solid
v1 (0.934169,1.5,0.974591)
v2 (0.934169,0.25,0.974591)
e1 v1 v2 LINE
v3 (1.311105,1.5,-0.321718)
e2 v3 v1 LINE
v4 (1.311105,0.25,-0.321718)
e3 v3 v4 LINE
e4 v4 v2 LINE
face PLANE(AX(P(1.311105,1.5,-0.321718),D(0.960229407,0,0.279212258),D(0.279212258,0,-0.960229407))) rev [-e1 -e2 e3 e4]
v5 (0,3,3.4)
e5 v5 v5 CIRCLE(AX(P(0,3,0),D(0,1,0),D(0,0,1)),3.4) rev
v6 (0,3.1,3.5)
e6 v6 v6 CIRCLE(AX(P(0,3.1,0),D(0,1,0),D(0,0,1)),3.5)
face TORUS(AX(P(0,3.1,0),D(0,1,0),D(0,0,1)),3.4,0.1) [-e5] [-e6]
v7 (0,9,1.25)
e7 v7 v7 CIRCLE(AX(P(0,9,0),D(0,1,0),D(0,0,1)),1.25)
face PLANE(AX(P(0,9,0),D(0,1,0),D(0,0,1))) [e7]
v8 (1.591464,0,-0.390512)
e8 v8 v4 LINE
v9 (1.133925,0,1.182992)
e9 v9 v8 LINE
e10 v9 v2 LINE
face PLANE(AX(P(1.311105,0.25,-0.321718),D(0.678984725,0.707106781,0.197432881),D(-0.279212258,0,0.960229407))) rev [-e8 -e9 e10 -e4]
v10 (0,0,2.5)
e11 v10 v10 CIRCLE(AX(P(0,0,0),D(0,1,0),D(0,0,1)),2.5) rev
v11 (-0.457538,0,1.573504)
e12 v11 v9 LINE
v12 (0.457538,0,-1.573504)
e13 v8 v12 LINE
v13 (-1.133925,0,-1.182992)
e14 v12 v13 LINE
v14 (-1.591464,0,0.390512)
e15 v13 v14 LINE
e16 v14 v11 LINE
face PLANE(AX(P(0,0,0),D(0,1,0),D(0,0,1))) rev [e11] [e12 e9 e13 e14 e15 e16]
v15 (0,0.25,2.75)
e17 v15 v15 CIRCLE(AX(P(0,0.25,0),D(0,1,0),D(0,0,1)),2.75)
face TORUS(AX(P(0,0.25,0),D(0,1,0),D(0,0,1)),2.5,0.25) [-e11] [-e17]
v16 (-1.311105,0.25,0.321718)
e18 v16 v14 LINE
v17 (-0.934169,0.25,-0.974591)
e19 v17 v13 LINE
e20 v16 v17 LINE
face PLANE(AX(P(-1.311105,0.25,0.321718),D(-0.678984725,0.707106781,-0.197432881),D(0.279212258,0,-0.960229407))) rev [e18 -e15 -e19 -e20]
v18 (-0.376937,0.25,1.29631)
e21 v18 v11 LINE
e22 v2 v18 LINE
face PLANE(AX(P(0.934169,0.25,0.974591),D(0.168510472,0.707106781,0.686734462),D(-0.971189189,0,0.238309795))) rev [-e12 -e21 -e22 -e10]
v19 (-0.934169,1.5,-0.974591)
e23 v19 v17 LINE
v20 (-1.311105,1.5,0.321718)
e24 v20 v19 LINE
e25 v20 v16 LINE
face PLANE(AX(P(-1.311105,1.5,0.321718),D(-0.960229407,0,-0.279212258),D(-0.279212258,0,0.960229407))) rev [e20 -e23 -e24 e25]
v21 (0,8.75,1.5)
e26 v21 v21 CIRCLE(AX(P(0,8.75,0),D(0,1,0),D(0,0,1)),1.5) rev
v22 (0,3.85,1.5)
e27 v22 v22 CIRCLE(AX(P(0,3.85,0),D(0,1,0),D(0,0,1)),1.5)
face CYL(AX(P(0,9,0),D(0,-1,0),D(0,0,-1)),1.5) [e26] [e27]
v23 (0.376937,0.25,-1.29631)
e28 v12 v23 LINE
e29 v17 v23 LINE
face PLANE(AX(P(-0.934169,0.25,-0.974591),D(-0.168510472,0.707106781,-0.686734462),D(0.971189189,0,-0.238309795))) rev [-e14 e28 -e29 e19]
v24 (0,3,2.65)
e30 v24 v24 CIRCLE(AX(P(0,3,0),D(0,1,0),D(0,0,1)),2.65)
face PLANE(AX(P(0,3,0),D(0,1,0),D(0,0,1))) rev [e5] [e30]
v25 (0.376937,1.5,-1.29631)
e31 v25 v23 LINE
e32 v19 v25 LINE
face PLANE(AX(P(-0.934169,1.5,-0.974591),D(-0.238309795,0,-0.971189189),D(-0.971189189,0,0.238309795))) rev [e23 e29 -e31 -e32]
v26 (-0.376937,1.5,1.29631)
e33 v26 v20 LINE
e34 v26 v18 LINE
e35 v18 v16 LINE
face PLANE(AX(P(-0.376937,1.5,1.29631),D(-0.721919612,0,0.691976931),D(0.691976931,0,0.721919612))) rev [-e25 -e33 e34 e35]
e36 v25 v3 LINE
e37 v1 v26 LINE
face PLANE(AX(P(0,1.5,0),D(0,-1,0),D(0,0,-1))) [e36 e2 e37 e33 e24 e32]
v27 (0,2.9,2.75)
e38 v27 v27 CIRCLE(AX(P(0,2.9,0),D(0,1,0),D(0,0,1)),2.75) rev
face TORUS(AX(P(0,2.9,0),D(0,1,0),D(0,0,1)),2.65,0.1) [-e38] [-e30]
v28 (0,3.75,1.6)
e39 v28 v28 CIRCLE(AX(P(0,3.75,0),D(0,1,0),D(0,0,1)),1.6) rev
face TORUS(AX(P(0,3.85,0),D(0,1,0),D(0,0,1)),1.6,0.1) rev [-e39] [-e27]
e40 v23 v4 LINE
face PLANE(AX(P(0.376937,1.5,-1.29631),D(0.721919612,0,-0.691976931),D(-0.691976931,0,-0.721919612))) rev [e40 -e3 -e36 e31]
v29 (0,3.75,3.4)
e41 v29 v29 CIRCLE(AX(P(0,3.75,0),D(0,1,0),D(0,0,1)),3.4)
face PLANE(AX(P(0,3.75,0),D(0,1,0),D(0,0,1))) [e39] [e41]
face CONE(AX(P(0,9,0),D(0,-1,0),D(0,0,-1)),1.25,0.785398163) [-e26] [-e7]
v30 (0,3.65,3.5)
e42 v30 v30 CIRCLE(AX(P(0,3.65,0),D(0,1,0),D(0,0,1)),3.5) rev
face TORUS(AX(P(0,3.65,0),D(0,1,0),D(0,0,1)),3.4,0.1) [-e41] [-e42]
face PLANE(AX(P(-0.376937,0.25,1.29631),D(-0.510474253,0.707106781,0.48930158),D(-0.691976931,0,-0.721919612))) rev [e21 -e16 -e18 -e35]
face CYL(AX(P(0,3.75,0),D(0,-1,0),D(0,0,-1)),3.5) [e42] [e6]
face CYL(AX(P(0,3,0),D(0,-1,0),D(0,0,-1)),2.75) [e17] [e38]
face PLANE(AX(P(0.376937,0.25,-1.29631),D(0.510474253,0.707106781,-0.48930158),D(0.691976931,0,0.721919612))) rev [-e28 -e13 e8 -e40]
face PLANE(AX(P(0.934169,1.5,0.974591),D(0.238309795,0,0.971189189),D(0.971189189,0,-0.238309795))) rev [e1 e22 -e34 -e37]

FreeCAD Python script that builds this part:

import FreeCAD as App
import Part
import Sketcher
from FreeCAD import Vector
Q = App.Units.Quantity


def edges_at(feature, points):
    """Names of the edges that pass closest to the given points."""
    edges = feature.Shape.Edges
    near = lambda p: min(range(len(edges)), key=lambda i: edges[i].distToShape(Part.Vertex(*p))[0])
    return sorted({f"Edge{near(p) + 1}" for p in points})

doc = App.newDocument("Part")
body = doc.addObject("PartDesign::Body", "Body")

# Sketch on XZ plane
sketch1 = doc.addObject("Sketcher::SketchObject", "Sketch")
body.addObject(sketch1)
sketch1.AttachmentSupport = (doc.XZ_Plane, [""])
sketch1.MapMode = "FlatFace"
sketch1.addGeometry(Part.Circle(Vector(0, 0, 0), Vector(0, 0, 1), 2.75), False)
sketch1.addConstraint([
    Sketcher.Constraint("Coincident", 0, 3, -1, 1),
    Sketcher.Constraint("Diameter", 0, Q("5.5 mm")),
])
pad1 = doc.addObject("PartDesign::Pad", "Pad")
body.addObject(pad1)
pad1.Profile = sketch1
pad1.Length = 3
pad1.Reversed = True

# Sketch on XZ plane
sketch2 = doc.addObject("Sketcher::SketchObject", "Sketch001")
body.addObject(sketch2)
sketch2.AttachmentSupport = (doc.XZ_Plane, [""])
sketch2.MapMode = "FlatFace"
sketch2.AttachmentOffset = App.Placement(Vector(0, 0, -3), App.Rotation())
sketch2.addGeometry(Part.Circle(Vector(0, 0, 0), Vector(0, 0, 1), 1.5), False)
sketch2.addConstraint([
    Sketcher.Constraint("Coincident", 0, 3, -1, 1),
    Sketcher.Constraint("Diameter", 0, Q("3 mm")),
])
pad2 = doc.addObject("PartDesign::Pad", "Pad001")
body.addObject(pad2)
pad2.Profile = sketch2
pad2.Length = 6
pad2.Reversed = True

# Sketch on XZ plane
sketch3 = doc.addObject("Sketcher::SketchObject", "Sketch002")
body.addObject(sketch3)
sketch3.AttachmentSupport = (doc.XZ_Plane, [""])
sketch3.MapMode = "FlatFace"
sketch3.addGeometry([
    Part.LineSegment(Vector(0.934169, 0.974591, 0), Vector(-0.376937, 1.29631, 0)),  # 0
    Part.LineSegment(Vector(-0.376937, 1.29631, 0), Vector(-1.311105, 0.321718, 0)),  # 1
    Part.LineSegment(Vector(-1.311105, 0.321718, 0), Vector(-0.934169, -0.974591, 0)),  # 2
    Part.LineSegment(Vector(-0.934169, -0.974591, 0), Vector(0.376937, -1.29631, 0)),  # 3
    Part.LineSegment(Vector(0.376937, -1.29631, 0), Vector(1.311105, -0.321718, 0)),  # 4
    Part.LineSegment(Vector(1.311105, -0.321718, 0), Vector(0.934169, 0.974591, 0)),  # 5
], False)
sketch3.addConstraint([
    Sketcher.Constraint("Coincident", 0, 2, 1, 1),
    Sketcher.Constraint("Coincident", 1, 2, 2, 1),
    Sketcher.Constraint("Coincident", 2, 2, 3, 1),
    Sketcher.Constraint("Coincident", 3, 2, 4, 1),
    Sketcher.Constraint("Coincident", 4, 2, 5, 1),
    Sketcher.Constraint("Coincident", 5, 2, 0, 1),
    Sketcher.Constraint("Symmetric", 0, 2, 3, 2, -1, 1),
    Sketcher.Constraint("Symmetric", 1, 2, 4, 2, -1, 1),
    Sketcher.Constraint("Symmetric", 2, 2, 5, 2, -1, 1),
    Sketcher.Constraint("Equal", 0, 1),
    Sketcher.Constraint("Equal", 1, 2),
    Sketcher.Constraint("Distance", 0, Q("1.35 mm")),
    Sketcher.Constraint("DistanceY", 2, 2, 0, 2, Q("2.270901 mm")),
    Sketcher.Constraint("DistanceY", -1, 1, 0, 2, Q("1.29631 mm")),
    Sketcher.Constraint("DistanceY", -1, 1, 1, 2, Q("0.321718 mm")),
])
pocket1 = doc.addObject("PartDesign::Pocket", "Pocket")
body.addObject(pocket1)
pocket1.Profile = sketch3
pocket1.Length = 1.5
doc.recompute()

chamfer = doc.addObject("PartDesign::Chamfer", "Chamfer")
body.addObject(chamfer)
chamfer.Base = (pocket1, edges_at(pocket1, [
    (1.123, 0, 0.326),
    (0.279, 0, 1.135),
    (-0.844, 0, 0.809),
    (-1.123, 0, -0.326),
    (-0.279, 0, -1.135),
    (0.844, 0, -0.809),
]))
chamfer.Size = 0.25
doc.recompute()

fillet = doc.addObject("PartDesign::Fillet", "Fillet")
body.addObject(fillet)
fillet.Base = (chamfer, edges_at(chamfer, [(0, 0, -2.75)]))
fillet.Radius = 0.25
doc.recompute()

chamfer2 = doc.addObject("PartDesign::Chamfer", "Chamfer001")
body.addObject(chamfer2)
chamfer2.Base = (fillet, edges_at(fillet, [(0, 9, -1.5)]))
chamfer2.Size = 0.25
doc.recompute()

fillet2 = doc.addObject("PartDesign::Fillet", "Fillet001")
body.addObject(fillet2)
fillet2.Base = (chamfer2, edges_at(chamfer2, [(0, 3, -2.75)]))
fillet2.Radius = 0.1

# Sketch on XZ plane
sketch4 = doc.addObject("Sketcher::SketchObject", "Sketch003")
body.addObject(sketch4)
sketch4.AttachmentSupport = (doc.XZ_Plane, [""])
sketch4.MapMode = "FlatFace"
sketch4.AttachmentOffset = App.Placement(Vector(0, 0, -3), App.Rotation())
sketch4.addGeometry([
    Part.Circle(Vector(0, 0, 0), Vector(0, 0, 1), 3.5),
    Part.Circle(Vector(0, 0, 0), Vector(0, 0, 1), 1.5),
], False)
sketch4.addConstraint([
    Sketcher.Constraint("Coincident", 0, 3, -1, 1),
    Sketcher.Constraint("Coincident", 1, 3, -1, 1),
    Sketcher.Constraint("Diameter", 0, Q("7 mm")),
    Sketcher.Constraint("Diameter", 1, Q("3 mm")),
])
pad3 = doc.addObject("PartDesign::Pad", "Pad002")
body.addObject(pad3)
pad3.Profile = sketch4
pad3.Length = 0.75
pad3.Reversed = True
doc.recompute()

fillet3 = doc.addObject("PartDesign::Fillet", "Fillet002")
body.addObject(fillet3)
fillet3.Base = (pad3, edges_at(pad3, [(0, 3.75, -3.5), (0, 3, -3.5), (0, 3.75, -1.5)]))
fillet3.Radius = 0.1

doc.recompute()
